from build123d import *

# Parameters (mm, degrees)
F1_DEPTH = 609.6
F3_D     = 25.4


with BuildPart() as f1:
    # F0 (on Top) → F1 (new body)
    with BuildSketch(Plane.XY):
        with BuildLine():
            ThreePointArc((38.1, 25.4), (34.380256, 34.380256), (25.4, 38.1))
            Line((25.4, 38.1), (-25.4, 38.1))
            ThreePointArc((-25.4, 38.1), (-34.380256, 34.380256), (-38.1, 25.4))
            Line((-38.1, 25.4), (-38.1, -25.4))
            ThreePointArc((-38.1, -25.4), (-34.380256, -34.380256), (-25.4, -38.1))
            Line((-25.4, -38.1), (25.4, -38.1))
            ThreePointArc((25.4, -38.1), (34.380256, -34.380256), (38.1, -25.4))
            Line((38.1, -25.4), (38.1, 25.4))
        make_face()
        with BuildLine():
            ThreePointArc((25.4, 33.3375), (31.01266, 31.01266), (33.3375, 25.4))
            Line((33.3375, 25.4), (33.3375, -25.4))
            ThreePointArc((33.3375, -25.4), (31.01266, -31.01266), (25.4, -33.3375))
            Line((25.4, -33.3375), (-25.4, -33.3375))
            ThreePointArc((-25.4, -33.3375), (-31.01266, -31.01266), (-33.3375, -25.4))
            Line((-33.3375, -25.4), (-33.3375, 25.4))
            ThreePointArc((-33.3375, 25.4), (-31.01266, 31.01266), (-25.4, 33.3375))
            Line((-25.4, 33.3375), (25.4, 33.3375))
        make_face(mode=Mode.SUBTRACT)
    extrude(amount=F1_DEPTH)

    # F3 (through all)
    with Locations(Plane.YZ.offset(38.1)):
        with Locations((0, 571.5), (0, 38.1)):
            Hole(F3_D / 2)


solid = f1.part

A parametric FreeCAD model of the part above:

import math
import FreeCAD as App
import Part
import Sketcher
Q = App.Units.Quantity

doc = App.newDocument("Part")
params = doc.addObject("Spreadsheet::Sheet", "Params")
for row, (alias, value) in enumerate([
    ("sketch1_radius", "0.5 in"),
    ("sketch1_width", "2 in"),
    ("sketch1_radius2", "0.3125 in"),
    ("pad1_length", "24 in"),
    ("sketch2_diameter", "1 in"),
    ("hole_diameter", "1 in"),
], start=1):
    params.set(f"A{row}", alias)
    params.set(f"B{row}", "=" + value)
    params.setAlias(f"B{row}", alias)

body = doc.addObject("PartDesign::Body", "Body")

sketch1 = body.newObject("Sketcher::SketchObject", "Sketch")
sketch1.AttachmentSupport = (doc.getObject("XY_Plane"), [""])
sketch1.MapMode = "FlatFace"
sketch1.addGeometry(Part.ArcOfCircle(Part.Circle(App.Vector(25, 25, 0), App.Vector(0, 0, 1), 13), math.radians(0), math.radians(90)), False)
sketch1.addGeometry(Part.LineSegment(App.Vector(25, 38, 0), App.Vector(-25, 38, 0)), False)
sketch1.addGeometry(Part.ArcOfCircle(Part.Circle(App.Vector(-25, 25, 0), App.Vector(0, 0, 1), 13), math.radians(90), math.radians(180)), False)
sketch1.addGeometry(Part.LineSegment(App.Vector(-38, 25, 0), App.Vector(-38, -25, 0)), False)
sketch1.addGeometry(Part.ArcOfCircle(Part.Circle(App.Vector(-25, -25, 0), App.Vector(0, 0, 1), 13), math.radians(-180), math.radians(-90)), False)
sketch1.addGeometry(Part.LineSegment(App.Vector(-25, -38, 0), App.Vector(25, -38, 0)), False)
sketch1.addGeometry(Part.ArcOfCircle(Part.Circle(App.Vector(25, -25, 0), App.Vector(0, 0, 1), 13), math.radians(-90), math.radians(0)), False)
sketch1.addGeometry(Part.LineSegment(App.Vector(38, -25, 0), App.Vector(38, 25, 0)), False)
sketch1.addGeometry(Part.LineSegment(App.Vector(-25, 33, 0), App.Vector(25, 33, 0)), False)
sketch1.addGeometry(Part.ArcOfCircle(Part.Circle(App.Vector(25, 25, 0), App.Vector(0, 0, 1), 8), math.radians(0), math.radians(90)), False)
sketch1.addGeometry(Part.LineSegment(App.Vector(33, 25, 0), App.Vector(33, -25, 0)), False)
sketch1.addGeometry(Part.ArcOfCircle(Part.Circle(App.Vector(25, -25, 0), App.Vector(0, 0, 1), 8), math.radians(-90), math.radians(0)), False)
sketch1.addGeometry(Part.LineSegment(App.Vector(25, -33, 0), App.Vector(-25, -33, 0)), False)
sketch1.addGeometry(Part.ArcOfCircle(Part.Circle(App.Vector(-25, -25, 0), App.Vector(0, 0, 1), 8), math.radians(-180), math.radians(-90)), False)
sketch1.addGeometry(Part.LineSegment(App.Vector(-33, -25, 0), App.Vector(-33, 25, 0)), False)
sketch1.addGeometry(Part.ArcOfCircle(Part.Circle(App.Vector(-25, 25, 0), App.Vector(0, 0, 1), 8), math.radians(90), math.radians(180)), False)
sketch1.addConstraint(Sketcher.Constraint("Tangent", 0, 2, 1, 1))
sketch1.addConstraint(Sketcher.Constraint("Tangent", 1, 2, 2, 1))
sketch1.addConstraint(Sketcher.Constraint("Tangent", 2, 2, 3, 1))
sketch1.addConstraint(Sketcher.Constraint("Tangent", 3, 2, 4, 1))
sketch1.addConstraint(Sketcher.Constraint("Tangent", 4, 2, 5, 1))
sketch1.addConstraint(Sketcher.Constraint("Tangent", 5, 2, 6, 1))
sketch1.addConstraint(Sketcher.Constraint("Tangent", 6, 2, 7, 1))
sketch1.addConstraint(Sketcher.Constraint("Tangent", 7, 2, 0, 1))
sketch1.addConstraint(Sketcher.Constraint("Tangent", 8, 2, 9, 2))
sketch1.addConstraint(Sketcher.Constraint("Tangent", 9, 1, 10, 1))
sketch1.addConstraint(Sketcher.Constraint("Tangent", 10, 2, 11, 2))
sketch1.addConstraint(Sketcher.Constraint("Tangent", 11, 1, 12, 1))
sketch1.addConstraint(Sketcher.Constraint("Tangent", 12, 2, 13, 2))
sketch1.addConstraint(Sketcher.Constraint("Tangent", 13, 1, 14, 1))
sketch1.addConstraint(Sketcher.Constraint("Tangent", 14, 2, 15, 2))
sketch1.addConstraint(Sketcher.Constraint("Tangent", 15, 1, 8, 1))
sketch1.addConstraint(Sketcher.Constraint("Horizontal", 1))
sketch1.addConstraint(Sketcher.Constraint("Vertical", 3))
sketch1.addConstraint(Sketcher.Constraint("Horizontal", 5))
sketch1.addConstraint(Sketcher.Constraint("Vertical", 7))
sketch1.addConstraint(Sketcher.Constraint("Horizontal", 8))
sketch1.addConstraint(Sketcher.Constraint("Vertical", 10))
sketch1.addConstraint(Sketcher.Constraint("Horizontal", 12))
sketch1.addConstraint(Sketcher.Constraint("Vertical", 14))
sketch1.addConstraint(Sketcher.Constraint("Coincident", 9, 3, 0, 3))
sketch1.addConstraint(Sketcher.Constraint("Coincident", 11, 3, 6, 3))
sketch1.addConstraint(Sketcher.Constraint("Coincident", 13, 3, 4, 3))
sketch1.addConstraint(Sketcher.Constraint("Equal", 0, 2))
sketch1.addConstraint(Sketcher.Constraint("Equal", 2, 4))
sketch1.addConstraint(Sketcher.Constraint("Equal", 4, 6))
sketch1.addConstraint(Sketcher.Constraint("Equal", 13, 15))
sketch1.addConstraint(Sketcher.Constraint("Symmetric", 0, 3, 4, 3, -1, 1))
sketch1.addConstraint(Sketcher.Constraint("Equal", 12, 3))
sketch1.addConstraint(Sketcher.Constraint("Radius", 0, Q("0.5 in")))
sketch1.addConstraint(Sketcher.Constraint("DistanceX", 1, 2, 1, 1, Q("2 in")))
sketch1.addConstraint(Sketcher.Constraint("Radius", 9, Q("0.3125 in")))
sketch1.setExpression("Constraints[33]", "Params.sketch1_radius")
sketch1.setExpression("Constraints[34]", "Params.sketch1_width")
sketch1.setExpression("Constraints[35]", "Params.sketch1_radius2")
pad1 = body.newObject("PartDesign::Pad", "Pad")
pad1.Profile = sketch1
pad1.setExpression("Length", "Params.pad1_length")

sketch2 = body.newObject("Sketcher::SketchObject", "Sketch001")
sketch2.AttachmentSupport = (doc.getObject("YZ_Plane"), [""])
sketch2.MapMode = "FlatFace"
sketch2.AttachmentOffset = App.Placement(App.Vector(0, 0, 1.5 * 25.4), App.Rotation())
sketch2.addGeometry(Part.Circle(App.Vector(0, 572, 0), App.Vector(0, 0, 1), 13), False)
sketch2.addGeometry(Part.Circle(App.Vector(0, 38, 0), App.Vector(0, 0, 1), 13), False)
sketch2.addConstraint(Sketcher.Constraint("Equal", 0, 1))
sketch2.addConstraint(Sketcher.Constraint("PointOnObject", 0, 3, -2))
sketch2.addConstraint(Sketcher.Constraint("PointOnObject", 1, 3, -2))
sketch2.addConstraint(Sketcher.Constraint("Diameter", 0, Q("1 in")))
sketch2.addConstraint(Sketcher.Constraint("DistanceY", 1, 3, 0, 3, Q("21 in")))
sketch2.addConstraint(Sketcher.Constraint("DistanceY", -1, 1, 0, 3, Q("22.5 in")))
sketch2.setExpression("Constraints[3]", "Params.sketch2_diameter")
doc.recompute()
hole = body.newObject("PartDesign::Hole", "Hole")
hole.Profile = sketch2
hole.ThreadType = "None"
hole.setExpression("Diameter", "Params.hole_diameter")
hole.DepthType = "ThroughAll"

doc.recompute()
